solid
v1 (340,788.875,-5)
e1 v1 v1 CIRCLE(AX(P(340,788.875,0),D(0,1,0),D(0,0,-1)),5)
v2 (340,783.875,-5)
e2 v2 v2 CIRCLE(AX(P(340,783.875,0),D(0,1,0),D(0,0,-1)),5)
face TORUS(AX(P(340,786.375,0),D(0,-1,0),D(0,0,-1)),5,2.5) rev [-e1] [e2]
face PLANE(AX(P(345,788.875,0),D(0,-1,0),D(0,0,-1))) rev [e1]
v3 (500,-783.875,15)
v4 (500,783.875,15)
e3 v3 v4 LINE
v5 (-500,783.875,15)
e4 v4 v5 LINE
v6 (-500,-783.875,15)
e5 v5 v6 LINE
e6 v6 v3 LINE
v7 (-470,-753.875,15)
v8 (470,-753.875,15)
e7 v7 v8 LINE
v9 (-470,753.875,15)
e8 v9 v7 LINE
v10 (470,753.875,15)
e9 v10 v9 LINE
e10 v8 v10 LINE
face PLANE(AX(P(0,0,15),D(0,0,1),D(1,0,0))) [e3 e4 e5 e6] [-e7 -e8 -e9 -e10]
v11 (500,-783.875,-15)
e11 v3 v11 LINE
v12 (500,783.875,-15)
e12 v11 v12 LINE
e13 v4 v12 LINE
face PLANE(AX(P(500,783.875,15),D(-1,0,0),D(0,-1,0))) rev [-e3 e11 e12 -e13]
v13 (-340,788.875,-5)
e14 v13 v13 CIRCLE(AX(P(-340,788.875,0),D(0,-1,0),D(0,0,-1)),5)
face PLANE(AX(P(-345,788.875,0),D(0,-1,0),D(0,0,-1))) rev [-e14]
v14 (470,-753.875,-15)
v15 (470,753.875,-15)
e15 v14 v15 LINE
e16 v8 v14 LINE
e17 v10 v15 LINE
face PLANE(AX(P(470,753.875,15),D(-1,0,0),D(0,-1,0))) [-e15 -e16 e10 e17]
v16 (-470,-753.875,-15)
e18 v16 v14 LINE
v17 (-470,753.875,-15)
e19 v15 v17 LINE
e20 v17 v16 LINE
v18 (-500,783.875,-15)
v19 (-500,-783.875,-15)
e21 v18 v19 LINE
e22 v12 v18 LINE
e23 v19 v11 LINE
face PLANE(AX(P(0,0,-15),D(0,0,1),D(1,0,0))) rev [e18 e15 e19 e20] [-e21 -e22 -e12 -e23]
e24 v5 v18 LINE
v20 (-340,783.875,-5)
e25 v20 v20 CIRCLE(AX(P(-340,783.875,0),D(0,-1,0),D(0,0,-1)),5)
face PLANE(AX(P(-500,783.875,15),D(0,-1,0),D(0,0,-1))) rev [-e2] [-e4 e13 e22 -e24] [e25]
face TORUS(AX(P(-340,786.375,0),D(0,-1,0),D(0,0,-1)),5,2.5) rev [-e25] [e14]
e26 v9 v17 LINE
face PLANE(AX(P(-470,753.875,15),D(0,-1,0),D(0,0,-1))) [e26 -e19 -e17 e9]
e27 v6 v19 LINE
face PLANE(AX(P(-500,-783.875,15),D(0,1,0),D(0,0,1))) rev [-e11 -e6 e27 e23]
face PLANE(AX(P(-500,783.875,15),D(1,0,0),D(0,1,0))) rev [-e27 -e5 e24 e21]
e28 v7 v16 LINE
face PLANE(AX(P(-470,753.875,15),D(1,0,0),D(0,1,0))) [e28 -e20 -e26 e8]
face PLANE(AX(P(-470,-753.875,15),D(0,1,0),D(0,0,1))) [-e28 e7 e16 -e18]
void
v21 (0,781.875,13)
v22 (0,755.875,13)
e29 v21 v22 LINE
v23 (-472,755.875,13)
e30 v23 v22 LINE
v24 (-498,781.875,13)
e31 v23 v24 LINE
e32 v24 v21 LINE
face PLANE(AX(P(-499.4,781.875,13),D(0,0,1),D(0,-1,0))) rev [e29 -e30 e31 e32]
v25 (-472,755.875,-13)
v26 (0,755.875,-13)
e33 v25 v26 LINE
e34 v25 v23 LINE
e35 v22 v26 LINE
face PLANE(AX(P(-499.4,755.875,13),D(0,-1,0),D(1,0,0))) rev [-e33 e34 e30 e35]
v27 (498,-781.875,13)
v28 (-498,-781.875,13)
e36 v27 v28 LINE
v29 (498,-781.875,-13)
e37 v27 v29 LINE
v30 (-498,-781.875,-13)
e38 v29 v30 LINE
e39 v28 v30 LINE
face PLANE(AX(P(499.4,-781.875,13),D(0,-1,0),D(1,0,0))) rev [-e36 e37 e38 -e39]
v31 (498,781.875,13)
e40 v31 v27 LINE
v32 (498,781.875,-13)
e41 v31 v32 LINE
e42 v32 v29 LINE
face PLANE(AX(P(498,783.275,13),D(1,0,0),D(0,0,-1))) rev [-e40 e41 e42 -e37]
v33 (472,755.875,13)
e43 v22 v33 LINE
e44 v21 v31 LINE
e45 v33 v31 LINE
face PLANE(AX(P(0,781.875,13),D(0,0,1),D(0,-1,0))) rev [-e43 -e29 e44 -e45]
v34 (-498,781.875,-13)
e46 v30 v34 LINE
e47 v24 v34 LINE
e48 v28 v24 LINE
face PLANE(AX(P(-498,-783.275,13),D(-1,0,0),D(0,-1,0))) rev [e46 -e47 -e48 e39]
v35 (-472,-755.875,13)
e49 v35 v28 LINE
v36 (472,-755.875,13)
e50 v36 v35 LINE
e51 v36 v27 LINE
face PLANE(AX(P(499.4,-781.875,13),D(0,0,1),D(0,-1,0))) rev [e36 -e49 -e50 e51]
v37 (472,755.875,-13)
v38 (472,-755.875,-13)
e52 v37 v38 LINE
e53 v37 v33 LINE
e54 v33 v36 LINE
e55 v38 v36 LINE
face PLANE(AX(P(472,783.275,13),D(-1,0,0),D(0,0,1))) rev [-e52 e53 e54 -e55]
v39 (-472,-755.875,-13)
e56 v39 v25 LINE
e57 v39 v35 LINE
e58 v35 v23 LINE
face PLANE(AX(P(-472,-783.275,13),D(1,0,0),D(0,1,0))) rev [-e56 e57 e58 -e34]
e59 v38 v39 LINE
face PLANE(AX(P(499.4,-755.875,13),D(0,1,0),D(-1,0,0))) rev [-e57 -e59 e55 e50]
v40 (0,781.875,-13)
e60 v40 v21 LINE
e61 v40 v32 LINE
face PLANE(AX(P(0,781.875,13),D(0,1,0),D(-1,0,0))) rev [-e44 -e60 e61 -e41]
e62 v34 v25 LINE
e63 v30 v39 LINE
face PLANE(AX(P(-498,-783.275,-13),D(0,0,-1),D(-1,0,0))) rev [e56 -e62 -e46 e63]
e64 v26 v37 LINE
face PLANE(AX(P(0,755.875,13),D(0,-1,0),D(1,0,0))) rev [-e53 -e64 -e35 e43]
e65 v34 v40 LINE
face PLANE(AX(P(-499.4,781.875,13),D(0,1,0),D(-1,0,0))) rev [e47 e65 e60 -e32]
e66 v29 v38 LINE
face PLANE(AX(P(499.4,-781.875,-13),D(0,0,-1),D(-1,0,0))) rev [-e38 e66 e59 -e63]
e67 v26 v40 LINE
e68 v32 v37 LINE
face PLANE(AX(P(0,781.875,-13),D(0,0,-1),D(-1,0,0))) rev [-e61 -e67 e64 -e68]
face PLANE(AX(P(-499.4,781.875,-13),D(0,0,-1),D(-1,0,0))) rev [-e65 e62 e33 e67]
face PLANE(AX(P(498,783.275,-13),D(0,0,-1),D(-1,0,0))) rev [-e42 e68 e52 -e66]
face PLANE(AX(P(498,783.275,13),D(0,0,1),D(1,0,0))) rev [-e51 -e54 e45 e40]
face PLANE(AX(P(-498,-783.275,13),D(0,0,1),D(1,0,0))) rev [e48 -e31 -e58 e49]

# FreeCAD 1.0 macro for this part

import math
import FreeCAD as App
import Part
import Sketcher

V = App.Vector

doc = App.newDocument("Part")
params = doc.addObject("Spreadsheet::Sheet", "Params")
for row, (alias, value) in enumerate([
    ("sketch1_width", "1000 mm"),
    ("sketch1_width2", "940 mm"),
    ("sketch1_height", "1567.75 mm"),
    ("pad1_length", "30 mm"),
    ("sketch2_width", "26 mm"),
    ("sketch3_width", "970 mm"),
    ("sketch3_height", "1537.75 mm"),
    ("sketch4_radius", "2.5 mm"),
    ("revolution_angle", "360 deg"),
], start=1):
    params.set(f"A{row}", alias)
    params.set(f"B{row}", "=" + value)
    params.setAlias(f"B{row}", alias)

body = doc.addObject("PartDesign::Body", "Body")

# Sketch on XY plane
sketch1 = body.newObject("Sketcher::SketchObject", "Sketch")
sketch1.AttachmentSupport = (doc.getObject("XY_Plane"), [""])
sketch1.MapMode = "FlatFace"
sketch1.addGeometry([
    Part.LineSegment(V(-500, 784, 0), V(-500, -784, 0)),  # 0
    Part.LineSegment(V(-500, -784, 0), V(500, -784, 0)),  # 1
    Part.LineSegment(V(500, -784, 0), V(500, 784, 0)),  # 2
    Part.LineSegment(V(500, 784, 0), V(-500, 784, 0)),  # 3
    Part.LineSegment(V(470, -754, 0), V(-470, -754, 0)),  # 4
    Part.LineSegment(V(-470, -754, 0), V(-470, 754, 0)),  # 5
    Part.LineSegment(V(-470, 754, 0), V(470, 754, 0)),  # 6
    Part.LineSegment(V(470, 754, 0), V(470, -754, 0)),  # 7
], False)
sketch1.addConstraint([
    Sketcher.Constraint("Coincident", 0, 2, 1, 1),
    Sketcher.Constraint("Coincident", 1, 2, 2, 1),
    Sketcher.Constraint("Coincident", 2, 2, 3, 1),
    Sketcher.Constraint("Coincident", 3, 2, 0, 1),
    Sketcher.Constraint("Coincident", 4, 2, 5, 1),
    Sketcher.Constraint("Coincident", 5, 2, 6, 1),
    Sketcher.Constraint("Coincident", 6, 2, 7, 1),
    Sketcher.Constraint("Coincident", 7, 2, 4, 1),
    Sketcher.Constraint("Vertical", 0),
    Sketcher.Constraint("Horizontal", 1),
    Sketcher.Constraint("Vertical", 2),
    Sketcher.Constraint("Horizontal", 3),
    Sketcher.Constraint("Horizontal", 4),
    Sketcher.Constraint("Vertical", 5),
    Sketcher.Constraint("Horizontal", 6),
    Sketcher.Constraint("Vertical", 7),
    Sketcher.Constraint("Symmetric", 0, 2, 2, 2, -1, 1),
    Sketcher.Constraint("Symmetric", 4, 2, 6, 2, -1, 1),
    Sketcher.Constraint("DistanceX", 1, 1, 1, 2, 1000.0),
    Sketcher.Constraint("DistanceX", 4, 2, 4, 1, 940.0),
    Sketcher.Constraint("DistanceY", 0, 2, 4, 2, 30.0),
    Sketcher.Constraint("DistanceY", 0, 2, 0, 1, 1567.75),
])
sketch1.setExpression("Constraints[18]", "Params.sketch1_width")
sketch1.setExpression("Constraints[19]", "Params.sketch1_width2")
sketch1.setExpression("Constraints[21]", "Params.sketch1_height")
pad1 = body.newObject("PartDesign::Pad", "Pad")
pad1.Profile = sketch1
pad1.setExpression("Length", "Params.pad1_length")
pad1.Midplane = True

# Sketch on YZ plane
sketch2 = body.newObject("Sketcher::SketchObject", "Sketch001")
sketch2.AttachmentSupport = (doc.getObject("YZ_Plane"), [""])
sketch2.MapMode = "FlatFace"
sketch2.addGeometry([
    Part.LineSegment(V(782, 13, 0), V(756, 13, 0)),
    Part.LineSegment(V(756, 13, 0), V(756, -13, 0)),
    Part.LineSegment(V(756, -13, 0), V(782, -13, 0)),
    Part.LineSegment(V(782, -13, 0), V(782, 13, 0)),
], False)
sketch2.addConstraint([
    Sketcher.Constraint("Coincident", 0, 2, 1, 1),
    Sketcher.Constraint("Coincident", 1, 2, 2, 1),
    Sketcher.Constraint("Coincident", 2, 2, 3, 1),
    Sketcher.Constraint("Coincident", 3, 2, 0, 1),
    Sketcher.Constraint("Horizontal", 0),
    Sketcher.Constraint("Vertical", 1),
    Sketcher.Constraint("Horizontal", 2),
    Sketcher.Constraint("Vertical", 3),
    Sketcher.Constraint("Equal", 2, 1),
    Sketcher.Constraint("DistanceX", 0, 2, 0, 1, 26.0),
    Sketcher.Constraint("DistanceY", -1, 1, 0, 2, 13.0),
    Sketcher.Constraint("DistanceX", -1, 1, 0, 2, 755.875),
])
sketch2.setExpression("Constraints[9]", "Params.sketch2_width")

# Sketch on XY plane
sketch3 = body.newObject("Sketcher::SketchObject", "Sketch002")
sketch3.AttachmentSupport = (doc.getObject("XY_Plane"), [""])
sketch3.MapMode = "FlatFace"
sketch3.addGeometry([
    Part.LineSegment(V(-485, 769, 0), V(-485, -769, 0)),
    Part.LineSegment(V(-485, -769, 0), V(485, -769, 0)),
    Part.LineSegment(V(485, -769, 0), V(485, 769, 0)),
    Part.LineSegment(V(485, 769, 0), V(-485, 769, 0)),
], False)
sketch3.addConstraint([
    Sketcher.Constraint("Coincident", 0, 2, 1, 1),
    Sketcher.Constraint("Coincident", 1, 2, 2, 1),
    Sketcher.Constraint("Coincident", 2, 2, 3, 1),
    Sketcher.Constraint("Coincident", 3, 2, 0, 1),
    Sketcher.Constraint("Vertical", 0),
    Sketcher.Constraint("Horizontal", 1),
    Sketcher.Constraint("Vertical", 2),
    Sketcher.Constraint("Horizontal", 3),
    Sketcher.Constraint("Symmetric", 0, 2, 2, 2, -1, 1),
    Sketcher.Constraint("DistanceX", 1, 1, 1, 2, 970.0),
    Sketcher.Constraint("DistanceY", 0, 2, 0, 1, 1537.75),
])
sketch3.setExpression("Constraints[9]", "Params.sketch3_width")
sketch3.setExpression("Constraints[10]", "Params.sketch3_height")
doc.recompute()

subtractivepipe = body.newObject("PartDesign::SubtractivePipe", "SubtractivePipe")
subtractivepipe.Profile = sketch2
subtractivepipe.Spine = (sketch3, ["Edge1", "Edge2", "Edge3", "Edge4"])
subtractivepipe.Transition = "Right corner"

# Sketch on XY plane
sketch4 = body.newObject("Sketcher::SketchObject", "Sketch003")
sketch4.AttachmentSupport = (doc.getObject("XY_Plane"), [""])
sketch4.MapMode = "FlatFace"
sketch4.addGeometry([
    Part.LineSegment(V(-340, 783.9, 0), V(-340, 788.9, 0)),
    Part.LineSegment(V(-340, 788.9, 0), V(-345, 788.9, 0)),
    Part.ArcOfCircle(Part.Circle(V(-345, 786.4, 0), V(0, 0, 1), 2.5), math.radians(-90), math.radians(90)),
    Part.LineSegment(V(-345, 783.9, 0), V(-340, 783.9, 0)),
], False)
sketch4.addGeometry(Part.LineSegment(V(-340, 783.9, 0), V(-340, 788.9, 0)), True)  # axis
sketch4.addConstraint([
    Sketcher.Constraint("Coincident", 0, 2, 1, 1),
    Sketcher.Constraint("Tangent", 1, 2, 2, 2),
    Sketcher.Constraint("Tangent", 2, 1, 3, 1),
    Sketcher.Constraint("Coincident", 3, 2, 0, 1),
    Sketcher.Constraint("Vertical", 0),
    Sketcher.Constraint("Horizontal", 1),
    Sketcher.Constraint("Horizontal", 3),
    Sketcher.Constraint("Vertical", 4),
    Sketcher.Constraint("Coincident", 4, 1, 3, 2),
    Sketcher.Constraint("Horizontal", 1, 2, 4, 2),
    Sketcher.Constraint("Equal", 3, 0),
    Sketcher.Constraint("Radius", 2, 2.5),
    Sketcher.Constraint("DistanceX", 2, 3, -1, 1, 345.0),
    Sketcher.Constraint("DistanceY", -1, 1, 2, 3, 786.375),
])
sketch4.setExpression("Constraints[11]", "Params.sketch4_radius")
revolution = body.newObject("PartDesign::Revolution", "Revolution")
revolution.Profile = sketch4
revolution.ReferenceAxis = (sketch4, ["Axis0"])
revolution.setExpression("Angle", "Params.revolution_angle")
doc.recompute()

mirrored = body.newObject("PartDesign::Mirrored", "Mirrored")
mirrored.Originals = [revolution]
mirrored.MirrorPlane = (doc.getObject("YZ_Plane"), [""])
body.Tip = mirrored

doc.recompute()
